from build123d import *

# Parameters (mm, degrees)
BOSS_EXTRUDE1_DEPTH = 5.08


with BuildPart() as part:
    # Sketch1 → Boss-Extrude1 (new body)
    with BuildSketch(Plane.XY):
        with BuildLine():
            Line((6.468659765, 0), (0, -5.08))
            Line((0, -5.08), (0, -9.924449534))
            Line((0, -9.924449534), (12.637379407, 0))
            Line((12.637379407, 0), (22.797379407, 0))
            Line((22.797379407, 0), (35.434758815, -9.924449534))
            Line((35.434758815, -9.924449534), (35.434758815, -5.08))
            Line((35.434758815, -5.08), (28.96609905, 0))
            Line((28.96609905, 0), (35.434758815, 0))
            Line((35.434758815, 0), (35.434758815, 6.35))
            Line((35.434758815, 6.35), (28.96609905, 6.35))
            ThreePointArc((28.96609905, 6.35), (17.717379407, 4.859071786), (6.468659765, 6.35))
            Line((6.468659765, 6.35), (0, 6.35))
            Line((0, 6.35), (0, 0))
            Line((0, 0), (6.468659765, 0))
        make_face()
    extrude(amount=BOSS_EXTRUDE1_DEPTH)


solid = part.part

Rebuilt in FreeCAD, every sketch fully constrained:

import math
import FreeCAD as App
import Part
import Sketcher
from FreeCAD import Vector
Q = App.Units.Quantity

doc = App.newDocument("Part")
params = doc.addObject("Spreadsheet::Sheet", "Params")
for row, (alias, value) in enumerate([
    ("sketch1_radius", "1.7 in"),
    ("sketch1_width", "0.4 in"),
    ("sketch1_height", "0.25 in"),
    ("pad1_length", "0.2 in"),
], start=1):
    params.set(f"A{row}", alias)
    params.set(f"B{row}", "=" + value)
    params.setAlias(f"B{row}", alias)

body = doc.addObject("PartDesign::Body", "Body")

sketch1 = body.newObject("Sketcher::SketchObject", "Sketch")
sketch1.AttachmentSupport = (doc.getObject("XY_Plane"), [""])
sketch1.MapMode = "FlatFace"
sketch1.addGeometry(Part.LineSegment(Vector(6.5, 0, 0), Vector(0, -5.1, 0)), False)
sketch1.addGeometry(Part.LineSegment(Vector(0, -5.1, 0), Vector(0, -9.9, 0)), False)
sketch1.addGeometry(Part.LineSegment(Vector(0, -9.9, 0), Vector(12.6, 0, 0)), False)
sketch1.addGeometry(Part.LineSegment(Vector(12.6, 0, 0), Vector(22.8, 0, 0)), False)
sketch1.addGeometry(Part.LineSegment(Vector(22.8, 0, 0), Vector(35.4, -9.9, 0)), False)
sketch1.addGeometry(Part.LineSegment(Vector(35.4, -9.9, 0), Vector(35.4, -5.1, 0)), False)
sketch1.addGeometry(Part.LineSegment(Vector(35.4, -5.1, 0), Vector(29, 0, 0)), False)
sketch1.addGeometry(Part.LineSegment(Vector(29, 0, 0), Vector(35.4, 0, 0)), False)
sketch1.addGeometry(Part.LineSegment(Vector(35.4, 0, 0), Vector(35.4, 6.3, 0)), False)
sketch1.addGeometry(Part.LineSegment(Vector(35.4, 6.3, 0), Vector(29, 6.3, 0)), False)
sketch1.addGeometry(Part.ArcOfCircle(Part.Circle(Vector(17.7, 48, 0), Vector(0, 0, 1), 43.2), math.radians(-105), math.radians(-75)), False)
sketch1.addGeometry(Part.LineSegment(Vector(6.5, 6.3, 0), Vector(0, 6.3, 0)), False)
sketch1.addGeometry(Part.LineSegment(Vector(0, 6.3, 0), Vector(0, 0, 0)), False)
sketch1.addGeometry(Part.LineSegment(Vector(0, 0, 0), Vector(6.5, 0, 0)), False)
sketch1.addConstraint(Sketcher.Constraint("Coincident", 0, 2, 1, 1))
sketch1.addConstraint(Sketcher.Constraint("Coincident", 1, 2, 2, 1))
sketch1.addConstraint(Sketcher.Constraint("Coincident", 2, 2, 3, 1))
sketch1.addConstraint(Sketcher.Constraint("Coincident", 3, 2, 4, 1))
sketch1.addConstraint(Sketcher.Constraint("Coincident", 4, 2, 5, 1))
sketch1.addConstraint(Sketcher.Constraint("Coincident", 5, 2, 6, 1))
sketch1.addConstraint(Sketcher.Constraint("Coincident", 6, 2, 7, 1))
sketch1.addConstraint(Sketcher.Constraint("Coincident", 7, 2, 8, 1))
sketch1.addConstraint(Sketcher.Constraint("Coincident", 8, 2, 9, 1))
sketch1.addConstraint(Sketcher.Constraint("Coincident", 9, 2, 10, 2))
sketch1.addConstraint(Sketcher.Constraint("Coincident", 10, 1, 11, 1))
sketch1.addConstraint(Sketcher.Constraint("Coincident", 11, 2, 12, 1))
sketch1.addConstraint(Sketcher.Constraint("Coincident", 12, 2, 13, 1))
sketch1.addConstraint(Sketcher.Constraint("Coincident", 13, 2, 0, 1))
sketch1.addConstraint(Sketcher.Constraint("Vertical", 1))
sketch1.addConstraint(Sketcher.Constraint("Horizontal", 3))
sketch1.addConstraint(Sketcher.Constraint("Vertical", 5))
sketch1.addConstraint(Sketcher.Constraint("Horizontal", 7))
sketch1.addConstraint(Sketcher.Constraint("Vertical", 8))
sketch1.addConstraint(Sketcher.Constraint("Horizontal", 9))
sketch1.addConstraint(Sketcher.Constraint("Horizontal", 11))
sketch1.addConstraint(Sketcher.Constraint("Vertical", 12))
sketch1.addConstraint(Sketcher.Constraint("Horizontal", 13))
sketch1.addConstraint(Sketcher.Constraint("Coincident", 12, 2, -1, 1))
sketch1.addConstraint(Sketcher.Constraint("PointOnObject", 0, 2, -2))
sketch1.addConstraint(Sketcher.Constraint("PointOnObject", 2, 2, -1))
sketch1.addConstraint(Sketcher.Constraint("PointOnObject", 6, 2, -1))
sketch1.addConstraint(Sketcher.Constraint("Parallel", 0, 2))
sketch1.addConstraint(Sketcher.Constraint("Parallel", 4, 6))
sketch1.addConstraint(Sketcher.Constraint("Horizontal", 1, 2, 4, 2))
sketch1.addConstraint(Sketcher.Constraint("Horizontal", 0, 2, 5, 2))
sketch1.addConstraint(Sketcher.Constraint("Horizontal", 9, 2, 10, 1))
sketch1.addConstraint(Sketcher.Constraint("Vertical", 5, 2, 7, 2))
sketch1.addConstraint(Sketcher.Constraint("Vertical", 6, 2, 9, 2))
sketch1.addConstraint(Sketcher.Constraint("Vertical", 10, 1, 13, 2))
sketch1.addConstraint(Sketcher.Constraint("Equal", 9, 11))
sketch1.addConstraint(Sketcher.Constraint("Radius", 10, Q("1.7 in")))
sketch1.addConstraint(Sketcher.Constraint("DistanceX", 3, 1, 3, 2, Q("0.4 in")))
sketch1.addConstraint(Sketcher.Constraint("DistanceY", 8, 1, 8, 2, Q("0.25 in")))
sketch1.addConstraint(Sketcher.Constraint("DistanceY", 0, 2, -1, 1, Q("0.2 in")))
sketch1.addConstraint(Sketcher.Constraint("DistanceX", 7, 1, 7, 2, 6.46866))
sketch1.addConstraint(Sketcher.Constraint("DistanceY", 1, 2, 1, 1, 4.84445))
sketch1.setExpression("Constraints[36]", "Params.sketch1_radius")
sketch1.setExpression("Constraints[37]", "Params.sketch1_width")
sketch1.setExpression("Constraints[38]", "Params.sketch1_height")
pad1 = body.newObject("PartDesign::Pad", "Pad")
pad1.Profile = sketch1
pad1.setExpression("Length", "Params.pad1_length")

doc.recompute()
